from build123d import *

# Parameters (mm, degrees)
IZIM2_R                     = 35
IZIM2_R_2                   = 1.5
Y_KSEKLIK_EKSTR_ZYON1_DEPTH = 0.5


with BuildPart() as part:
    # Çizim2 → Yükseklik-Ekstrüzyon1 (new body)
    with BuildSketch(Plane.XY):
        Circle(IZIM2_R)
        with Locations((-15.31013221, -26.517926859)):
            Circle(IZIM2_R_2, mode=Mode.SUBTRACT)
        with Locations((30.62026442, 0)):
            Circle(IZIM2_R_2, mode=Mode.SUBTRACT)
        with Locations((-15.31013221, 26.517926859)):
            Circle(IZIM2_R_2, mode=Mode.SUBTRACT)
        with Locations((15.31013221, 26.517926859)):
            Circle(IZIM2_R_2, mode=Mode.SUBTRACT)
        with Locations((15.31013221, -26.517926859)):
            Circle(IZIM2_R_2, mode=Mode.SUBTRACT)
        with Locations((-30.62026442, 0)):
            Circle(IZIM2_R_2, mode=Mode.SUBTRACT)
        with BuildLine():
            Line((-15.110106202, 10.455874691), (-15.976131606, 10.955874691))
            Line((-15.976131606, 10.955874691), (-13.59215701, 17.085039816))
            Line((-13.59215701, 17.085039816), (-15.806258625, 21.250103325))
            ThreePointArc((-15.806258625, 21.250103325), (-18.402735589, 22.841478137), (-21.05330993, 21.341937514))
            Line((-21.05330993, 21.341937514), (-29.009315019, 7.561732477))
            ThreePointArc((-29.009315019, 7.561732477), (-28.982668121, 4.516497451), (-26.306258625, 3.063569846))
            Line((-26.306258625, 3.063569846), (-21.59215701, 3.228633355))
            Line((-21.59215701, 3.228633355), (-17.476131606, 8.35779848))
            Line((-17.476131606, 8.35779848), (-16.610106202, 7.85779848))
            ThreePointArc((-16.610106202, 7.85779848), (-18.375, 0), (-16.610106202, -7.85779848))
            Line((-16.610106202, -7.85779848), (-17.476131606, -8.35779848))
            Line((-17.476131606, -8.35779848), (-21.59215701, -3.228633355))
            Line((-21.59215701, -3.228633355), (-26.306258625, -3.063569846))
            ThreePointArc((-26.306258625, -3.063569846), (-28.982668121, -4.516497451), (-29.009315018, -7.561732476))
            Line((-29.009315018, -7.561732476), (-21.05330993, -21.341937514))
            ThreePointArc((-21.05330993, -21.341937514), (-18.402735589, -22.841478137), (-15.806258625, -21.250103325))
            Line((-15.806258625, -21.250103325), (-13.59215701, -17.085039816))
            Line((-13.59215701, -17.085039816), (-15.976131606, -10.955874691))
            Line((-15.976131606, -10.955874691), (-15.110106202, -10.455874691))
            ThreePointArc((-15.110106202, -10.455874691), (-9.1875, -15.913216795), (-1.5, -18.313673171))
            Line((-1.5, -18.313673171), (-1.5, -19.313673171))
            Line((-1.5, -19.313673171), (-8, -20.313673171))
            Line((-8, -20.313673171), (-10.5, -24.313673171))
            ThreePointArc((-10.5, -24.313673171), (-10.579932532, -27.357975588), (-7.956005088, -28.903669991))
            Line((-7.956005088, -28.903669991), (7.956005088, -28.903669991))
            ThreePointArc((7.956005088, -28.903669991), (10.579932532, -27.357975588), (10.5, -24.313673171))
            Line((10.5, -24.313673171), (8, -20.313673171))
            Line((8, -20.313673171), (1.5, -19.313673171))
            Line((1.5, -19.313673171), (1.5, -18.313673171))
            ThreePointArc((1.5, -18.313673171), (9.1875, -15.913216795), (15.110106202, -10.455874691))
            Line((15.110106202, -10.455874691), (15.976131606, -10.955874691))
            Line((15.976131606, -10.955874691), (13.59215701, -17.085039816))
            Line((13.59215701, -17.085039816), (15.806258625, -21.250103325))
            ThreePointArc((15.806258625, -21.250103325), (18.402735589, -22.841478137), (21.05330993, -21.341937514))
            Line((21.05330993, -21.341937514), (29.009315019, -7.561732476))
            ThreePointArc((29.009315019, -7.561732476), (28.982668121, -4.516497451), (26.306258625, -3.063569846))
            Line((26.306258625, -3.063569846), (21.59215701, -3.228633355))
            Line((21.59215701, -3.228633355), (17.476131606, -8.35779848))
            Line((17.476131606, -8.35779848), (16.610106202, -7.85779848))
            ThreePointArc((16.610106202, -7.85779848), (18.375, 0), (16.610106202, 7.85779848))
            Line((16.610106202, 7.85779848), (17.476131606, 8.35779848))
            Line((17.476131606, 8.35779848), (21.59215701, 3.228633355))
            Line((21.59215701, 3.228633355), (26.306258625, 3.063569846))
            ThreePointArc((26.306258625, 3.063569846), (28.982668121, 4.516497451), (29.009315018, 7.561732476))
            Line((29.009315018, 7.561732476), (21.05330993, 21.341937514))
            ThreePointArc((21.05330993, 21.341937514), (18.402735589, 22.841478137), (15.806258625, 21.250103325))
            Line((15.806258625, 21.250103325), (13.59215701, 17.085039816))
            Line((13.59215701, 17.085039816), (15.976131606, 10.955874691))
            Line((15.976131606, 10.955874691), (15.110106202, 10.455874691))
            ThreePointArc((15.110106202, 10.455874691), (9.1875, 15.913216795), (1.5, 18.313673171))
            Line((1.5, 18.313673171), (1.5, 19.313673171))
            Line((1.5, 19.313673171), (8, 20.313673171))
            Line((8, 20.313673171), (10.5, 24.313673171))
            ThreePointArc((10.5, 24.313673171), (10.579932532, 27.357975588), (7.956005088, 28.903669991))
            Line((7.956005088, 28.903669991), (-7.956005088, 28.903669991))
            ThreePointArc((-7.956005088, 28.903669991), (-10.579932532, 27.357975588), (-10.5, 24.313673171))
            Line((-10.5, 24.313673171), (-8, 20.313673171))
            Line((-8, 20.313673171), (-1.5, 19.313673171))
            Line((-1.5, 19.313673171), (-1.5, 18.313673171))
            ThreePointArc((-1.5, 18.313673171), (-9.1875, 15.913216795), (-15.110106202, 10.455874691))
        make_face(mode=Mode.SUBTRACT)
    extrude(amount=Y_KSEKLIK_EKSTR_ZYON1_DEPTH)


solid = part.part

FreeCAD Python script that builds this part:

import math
import FreeCAD as App
import Part
import Sketcher
Q = App.Units.Quantity

doc = App.newDocument("Part")
params = doc.addObject("Spreadsheet::Sheet", "Params")
for row, (alias, value) in enumerate([
    ("sketch1_diameter", "70 mm"),
    ("sketch1_diameter2", "3 mm"),
    ("sketch1_radius", "3 mm"),
    ("sketch1_height", "1 mm"),
    ("sketch1_length", "1 mm"),
    ("pad1_length", "0.5 mm"),
], start=1):
    params.set(f"A{row}", alias)
    params.set(f"B{row}", "=" + value)
    params.setAlias(f"B{row}", alias)

body = doc.addObject("PartDesign::Body", "Body")

# Sketch on XY plane
sketch1 = body.newObject("Sketcher::SketchObject", "Sketch")
sketch1.AttachmentSupport = (doc.getObject("XY_Plane"), [""])
sketch1.MapMode = "FlatFace"
sketch1.addGeometry([
    Part.Circle(App.Vector(0, 0, 0), App.Vector(0, 0, 1), 35),  # 0
    Part.Circle(App.Vector(-15.310132, -26.517927, 0), App.Vector(0, 0, 1), 1.5),  # 1
    Part.Circle(App.Vector(15.310132, -26.517927, 0), App.Vector(0, 0, 1), 1.5),  # 2
    Part.Circle(App.Vector(-30.620264, 0, 0), App.Vector(0, 0, 1), 1.5),  # 3
    Part.LineSegment(App.Vector(-15.976132, 10.955875, 0), App.Vector(-15.110106, 10.455875, 0)),  # 4
    Part.ArcOfCircle(Part.Circle(App.Vector(0, 0, 0), App.Vector(0, 0, 1), 18.375), math.radians(94.682417), math.radians(145.317583)),  # 5
    Part.LineSegment(App.Vector(-1.5, 18.313673, 0), App.Vector(-1.5, 19.313673, 0)),  # 6
    Part.LineSegment(App.Vector(-1.5, 19.313673, 0), App.Vector(-8, 20.313673, 0)),  # 7
    Part.LineSegment(App.Vector(-8, 20.313673, 0), App.Vector(-10.5, 24.313673, 0)),  # 8
    Part.ArcOfCircle(Part.Circle(App.Vector(-7.956005, 25.90367, 0), App.Vector(0, 0, 1), 3), math.radians(90), math.radians(212.005383)),  # 9
    Part.LineSegment(App.Vector(-7.956005, 28.90367, 0), App.Vector(7.956005, 28.90367, 0)),  # 10
    Part.ArcOfCircle(Part.Circle(App.Vector(7.956005, 25.90367, 0), App.Vector(0, 0, 1), 3), math.radians(-32.005383), math.radians(90)),  # 11
    Part.LineSegment(App.Vector(10.5, 24.313673, 0), App.Vector(8, 20.313673, 0)),  # 12
    Part.LineSegment(App.Vector(8, 20.313673, 0), App.Vector(1.5, 19.313673, 0)),  # 13
    Part.LineSegment(App.Vector(1.5, 19.313673, 0), App.Vector(1.5, 18.313673, 0)),  # 14
    Part.ArcOfCircle(Part.Circle(App.Vector(0, 0, 0), App.Vector(0, 0, 1), 18.375), math.radians(34.682417), math.radians(85.317583)),  # 15
    Part.LineSegment(App.Vector(15.110106, 10.455875, 0), App.Vector(15.976132, 10.955875, 0)),  # 16
    Part.LineSegment(App.Vector(15.976132, 10.955875, 0), App.Vector(13.592157, 17.08504, 0)),  # 17
    Part.LineSegment(App.Vector(13.592157, 17.08504, 0), App.Vector(15.806259, 21.250103, 0)),  # 18
    Part.ArcOfCircle(Part.Circle(App.Vector(18.455234, 19.841938, 0), App.Vector(0, 0, 1), 3), math.radians(30), math.radians(152.005383)),  # 19
    Part.LineSegment(App.Vector(21.05331, 21.341938, 0), App.Vector(29.009315, 7.561732, 0)),  # 20
    Part.ArcOfCircle(Part.Circle(App.Vector(26.411239, 6.061732, 0), App.Vector(0, 0, 1), 3), math.radians(-92.005383), math.radians(30)),  # 21
    Part.LineSegment(App.Vector(26.306259, 3.06357, 0), App.Vector(21.592157, 3.228633, 0)),  # 22
    Part.LineSegment(App.Vector(21.592157, 3.228633, 0), App.Vector(17.476132, 8.357798, 0)),  # 23
    Part.LineSegment(App.Vector(17.476132, 8.357798, 0), App.Vector(16.610106, 7.857798, 0)),  # 24
    Part.ArcOfCircle(Part.Circle(App.Vector(0, 0, 0), App.Vector(0, 0, 1), 18.375), math.radians(-25.317583), math.radians(25.317583)),  # 25
    Part.LineSegment(App.Vector(16.610106, -7.857798, 0), App.Vector(17.476132, -8.357798, 0)),  # 26
    Part.LineSegment(App.Vector(17.476132, -8.357798, 0), App.Vector(21.592157, -3.228633, 0)),  # 27
    Part.LineSegment(App.Vector(21.592157, -3.228633, 0), App.Vector(26.306259, -3.06357, 0)),  # 28
    Part.ArcOfCircle(Part.Circle(App.Vector(26.411239, -6.061732, 0), App.Vector(0, 0, 1), 3), math.radians(-30), math.radians(92.005383)),  # 29
    Part.LineSegment(App.Vector(29.009315, -7.561732, 0), App.Vector(21.05331, -21.341938, 0)),  # 30
    Part.ArcOfCircle(Part.Circle(App.Vector(18.455234, -19.841938, 0), App.Vector(0, 0, 1), 3), math.radians(-152.005383), math.radians(-30)),  # 31
    Part.LineSegment(App.Vector(15.806259, -21.250103, 0), App.Vector(13.592157, -17.08504, 0)),  # 32
    Part.LineSegment(App.Vector(13.592157, -17.08504, 0), App.Vector(15.976132, -10.955875, 0)),  # 33
    Part.LineSegment(App.Vector(15.976132, -10.955875, 0), App.Vector(15.110106, -10.455875, 0)),  # 34
    Part.ArcOfCircle(Part.Circle(App.Vector(0, 0, 0), App.Vector(0, 0, 1), 18.375), math.radians(-85.317583), math.radians(-34.682417)),  # 35
    Part.LineSegment(App.Vector(1.5, -18.313673, 0), App.Vector(1.5, -19.313673, 0)),  # 36
    Part.LineSegment(App.Vector(1.5, -19.313673, 0), App.Vector(8, -20.313673, 0)),  # 37
    Part.LineSegment(App.Vector(8, -20.313673, 0), App.Vector(10.5, -24.313673, 0)),  # 38
    Part.ArcOfCircle(Part.Circle(App.Vector(7.956005, -25.90367, 0), App.Vector(0, 0, 1), 3), math.radians(-90), math.radians(32.005383)),  # 39
    Part.LineSegment(App.Vector(7.956005, -28.90367, 0), App.Vector(-7.956005, -28.90367, 0)),  # 40
    Part.ArcOfCircle(Part.Circle(App.Vector(-7.956005, -25.90367, 0), App.Vector(0, 0, 1), 3), math.radians(147.994617), math.radians(270)),  # 41
    Part.LineSegment(App.Vector(-10.5, -24.313673, 0), App.Vector(-8, -20.313673, 0)),  # 42
    Part.LineSegment(App.Vector(-8, -20.313673, 0), App.Vector(-1.5, -19.313673, 0)),  # 43
    Part.LineSegment(App.Vector(-1.5, -19.313673, 0), App.Vector(-1.5, -18.313673, 0)),  # 44
    Part.ArcOfCircle(Part.Circle(App.Vector(0, 0, 0), App.Vector(0, 0, 1), 18.375), math.radians(-145.317583), math.radians(-94.682417)),  # 45
    Part.LineSegment(App.Vector(-15.110106, -10.455875, 0), App.Vector(-15.976132, -10.955875, 0)),  # 46
    Part.LineSegment(App.Vector(-15.976132, -10.955875, 0), App.Vector(-13.592157, -17.08504, 0)),  # 47
    Part.LineSegment(App.Vector(-13.592157, -17.08504, 0), App.Vector(-15.806259, -21.250103, 0)),  # 48
    Part.ArcOfCircle(Part.Circle(App.Vector(-18.455234, -19.841938, 0), App.Vector(0, 0, 1), 3), math.radians(-150), math.radians(-27.994617)),  # 49
    Part.LineSegment(App.Vector(-21.05331, -21.341938, 0), App.Vector(-29.009315, -7.561732, 0)),  # 50
    Part.ArcOfCircle(Part.Circle(App.Vector(-26.411239, -6.061732, 0), App.Vector(0, 0, 1), 3), math.radians(87.994617), math.radians(210)),  # 51
    Part.LineSegment(App.Vector(-26.306259, -3.06357, 0), App.Vector(-21.592157, -3.228633, 0)),  # 52
    Part.LineSegment(App.Vector(-21.592157, -3.228633, 0), App.Vector(-17.476132, -8.357798, 0)),  # 53
    Part.LineSegment(App.Vector(-17.476132, -8.357798, 0), App.Vector(-16.610106, -7.857798, 0)),  # 54
    Part.ArcOfCircle(Part.Circle(App.Vector(0, 0, 0), App.Vector(0, 0, 1), 18.375), math.radians(154.682417), math.radians(205.317583)),  # 55
    Part.LineSegment(App.Vector(-16.610106, 7.857798, 0), App.Vector(-17.476132, 8.357798, 0)),  # 56
    Part.LineSegment(App.Vector(-17.476132, 8.357798, 0), App.Vector(-21.592157, 3.228633, 0)),  # 57
    Part.LineSegment(App.Vector(-21.592157, 3.228633, 0), App.Vector(-26.306259, 3.06357, 0)),  # 58
    Part.ArcOfCircle(Part.Circle(App.Vector(-26.411239, 6.061732, 0), App.Vector(0, 0, 1), 3), math.radians(150), math.radians(272.005383)),  # 59
    Part.LineSegment(App.Vector(-29.009315, 7.561732, 0), App.Vector(-21.05331, 21.341938, 0)),  # 60
    Part.ArcOfCircle(Part.Circle(App.Vector(-18.455234, 19.841938, 0), App.Vector(0, 0, 1), 3), math.radians(27.994617), math.radians(150)),  # 61
    Part.LineSegment(App.Vector(-15.806259, 21.250103, 0), App.Vector(-13.592157, 17.08504, 0)),  # 62
    Part.LineSegment(App.Vector(-13.592157, 17.08504, 0), App.Vector(-15.976132, 10.955875, 0)),  # 63
    Part.Circle(App.Vector(-15.310132, 26.517927, 0), App.Vector(0, 0, 1), 1.5),  # 64
    Part.Circle(App.Vector(30.620264, 0, 0), App.Vector(0, 0, 1), 1.5),  # 65
    Part.Circle(App.Vector(15.310132, 26.517927, 0), App.Vector(0, 0, 1), 1.5),  # 66
], False)
sketch1.addConstraint([
    Sketcher.Constraint("Coincident", 4, 2, 5, 2),
    Sketcher.Constraint("Coincident", 5, 1, 6, 1),
    Sketcher.Constraint("Coincident", 6, 2, 7, 1),
    Sketcher.Constraint("Coincident", 7, 2, 8, 1),
    Sketcher.Constraint("Tangent", 8, 2, 9, 2),
    Sketcher.Constraint("Tangent", 9, 1, 10, 1),
    Sketcher.Constraint("Tangent", 10, 2, 11, 2),
    Sketcher.Constraint("Tangent", 11, 1, 12, 1),
    Sketcher.Constraint("Coincident", 12, 2, 13, 1),
    Sketcher.Constraint("Coincident", 13, 2, 14, 1),
    Sketcher.Constraint("Coincident", 14, 2, 15, 2),
    Sketcher.Constraint("Coincident", 15, 1, 16, 1),
    Sketcher.Constraint("Coincident", 16, 2, 17, 1),
    Sketcher.Constraint("Coincident", 17, 2, 18, 1),
    Sketcher.Constraint("Tangent", 18, 2, 19, 2),
    Sketcher.Constraint("Tangent", 19, 1, 20, 1),
    Sketcher.Constraint("Tangent", 20, 2, 21, 2),
    Sketcher.Constraint("Tangent", 21, 1, 22, 1),
    Sketcher.Constraint("Coincident", 22, 2, 23, 1),
    Sketcher.Constraint("Coincident", 23, 2, 24, 1),
    Sketcher.Constraint("Coincident", 24, 2, 25, 2),
    Sketcher.Constraint("Coincident", 25, 1, 26, 1),
    Sketcher.Constraint("Coincident", 26, 2, 27, 1),
    Sketcher.Constraint("Coincident", 27, 2, 28, 1),
    Sketcher.Constraint("Tangent", 28, 2, 29, 2),
    Sketcher.Constraint("Tangent", 29, 1, 30, 1),
    Sketcher.Constraint("Tangent", 30, 2, 31, 2),
    Sketcher.Constraint("Tangent", 31, 1, 32, 1),
    Sketcher.Constraint("Coincident", 32, 2, 33, 1),
    Sketcher.Constraint("Coincident", 33, 2, 34, 1),
    Sketcher.Constraint("Coincident", 34, 2, 35, 2),
    Sketcher.Constraint("Coincident", 35, 1, 36, 1),
    Sketcher.Constraint("Coincident", 36, 2, 37, 1),
    Sketcher.Constraint("Coincident", 37, 2, 38, 1),
    Sketcher.Constraint("Tangent", 38, 2, 39, 2),
    Sketcher.Constraint("Tangent", 39, 1, 40, 1),
    Sketcher.Constraint("Tangent", 40, 2, 41, 2),
    Sketcher.Constraint("Tangent", 41, 1, 42, 1),
    Sketcher.Constraint("Coincident", 42, 2, 43, 1),
    Sketcher.Constraint("Coincident", 43, 2, 44, 1),
    Sketcher.Constraint("Coincident", 44, 2, 45, 2),
    Sketcher.Constraint("Coincident", 45, 1, 46, 1),
    Sketcher.Constraint("Coincident", 46, 2, 47, 1),
    Sketcher.Constraint("Coincident", 47, 2, 48, 1),
    Sketcher.Constraint("Tangent", 48, 2, 49, 2),
    Sketcher.Constraint("Tangent", 49, 1, 50, 1),
    Sketcher.Constraint("Tangent", 50, 2, 51, 2),
    Sketcher.Constraint("Tangent", 51, 1, 52, 1),
    Sketcher.Constraint("Coincident", 52, 2, 53, 1),
    Sketcher.Constraint("Coincident", 53, 2, 54, 1),
    Sketcher.Constraint("Coincident", 54, 2, 55, 2),
    Sketcher.Constraint("Coincident", 55, 1, 56, 1),
    Sketcher.Constraint("Coincident", 56, 2, 57, 1),
    Sketcher.Constraint("Coincident", 57, 2, 58, 1),
    Sketcher.Constraint("Tangent", 58, 2, 59, 2),
    Sketcher.Constraint("Tangent", 59, 1, 60, 1),
    Sketcher.Constraint("Tangent", 60, 2, 61, 2),
    Sketcher.Constraint("Tangent", 61, 1, 62, 1),
    Sketcher.Constraint("Coincident", 62, 2, 63, 1),
    Sketcher.Constraint("Coincident", 63, 2, 4, 1),
    Sketcher.Constraint("Vertical", 6),
    Sketcher.Constraint("Horizontal", 10),
    Sketcher.Constraint("Vertical", 14),
    Sketcher.Constraint("Vertical", 36),
    Sketcher.Constraint("Horizontal", 40),
    Sketcher.Constraint("Vertical", 44),
    Sketcher.Constraint("Coincident", 0, 3, -1, 1),
    Sketcher.Constraint("Coincident", 5, 3, -1, 1),
    Sketcher.Constraint("Coincident", 15, 3, -1, 1),
    Sketcher.Constraint("Coincident", 25, 3, -1, 1),
    Sketcher.Constraint("Coincident", 35, 3, -1, 1),
    Sketcher.Constraint("Coincident", 45, 3, -1, 1),
    Sketcher.Constraint("Coincident", 55, 3, -1, 1),
    Sketcher.Constraint("Equal", 1, 2),
    Sketcher.Constraint("Equal", 2, 3),
    Sketcher.Constraint("Equal", 9, 11),
    Sketcher.Constraint("Equal", 5, 15),
    Sketcher.Constraint("Equal", 11, 19),
    Sketcher.Constraint("Equal", 19, 21),
    Sketcher.Constraint("Equal", 15, 25),
    Sketcher.Constraint("Equal", 21, 29),
    Sketcher.Constraint("Equal", 29, 31),
    Sketcher.Constraint("Equal", 25, 35),
    Sketcher.Constraint("Equal", 31, 39),
    Sketcher.Constraint("Equal", 39, 41),
    Sketcher.Constraint("Equal", 35, 45),
    Sketcher.Constraint("Equal", 41, 49),
    Sketcher.Constraint("Equal", 49, 51),
    Sketcher.Constraint("Equal", 45, 55),
    Sketcher.Constraint("Equal", 51, 59),
    Sketcher.Constraint("Equal", 59, 61),
    Sketcher.Constraint("Equal", 3, 64),
    Sketcher.Constraint("Equal", 64, 65),
    Sketcher.Constraint("Equal", 65, 66),
    Sketcher.Constraint("Symmetric", 9, 3, 39, 3, -1, 1),
    Sketcher.Constraint("Symmetric", 19, 3, 49, 3, -1, 1),
    Sketcher.Constraint("Symmetric", 21, 3, 51, 3, -1, 1),
    Sketcher.Constraint("Symmetric", 29, 3, 59, 3, -1, 1),
    Sketcher.Constraint("Symmetric", 31, 3, 61, 3, -1, 1),
    Sketcher.Constraint("Symmetric", 2, 3, 64, 3, -1, 1),
    Sketcher.Constraint("Symmetric", 3, 3, 65, 3, -1, 1),
    Sketcher.Constraint("Symmetric", 1, 3, 66, 3, -1, 1),
    Sketcher.Constraint("Symmetric", 6, 2, 36, 2, -1, 1),
    Sketcher.Constraint("Symmetric", 7, 2, 37, 2, -1, 1),
    Sketcher.Constraint("Symmetric", 11, 1, 41, 1, -1, 1),
    Sketcher.Constraint("Symmetric", 13, 2, 43, 2, -1, 1),
    Sketcher.Constraint("Symmetric", 16, 2, 46, 2, -1, 1),
    Sketcher.Constraint("Symmetric", 17, 2, 47, 2, -1, 1),
    Sketcher.Constraint("Symmetric", 22, 2, 52, 2, -1, 1),
    Sketcher.Constraint("Symmetric", 23, 2, 53, 2, -1, 1),
    Sketcher.Constraint("Symmetric", 26, 2, 56, 2, -1, 1),
    Sketcher.Constraint("Symmetric", 27, 2, 57, 2, -1, 1),
    Sketcher.Constraint("Symmetric", 32, 2, 62, 2, -1, 1),
    Sketcher.Constraint("Symmetric", 33, 2, 63, 2, -1, 1),
    Sketcher.Constraint("Symmetric", 1, 3, 2, 3, -2),
    Sketcher.Constraint("Symmetric", 31, 3, 49, 3, -2),
    Sketcher.Constraint("Symmetric", 29, 3, 51, 3, -2),
    Sketcher.Constraint("Symmetric", 8, 2, 11, 1, -2),
    Sketcher.Constraint("Symmetric", 6, 2, 13, 2, -2),
    Sketcher.Constraint("Symmetric", 33, 2, 46, 2, -2),
    Sketcher.Constraint("Symmetric", 32, 2, 47, 2, -2),
    Sketcher.Constraint("Symmetric", 27, 2, 52, 2, -2),
    Sketcher.Constraint("Symmetric", 26, 2, 53, 2, -2),
    Sketcher.Constraint("PointOnObject", 3, 3, -1),
    Sketcher.Constraint("Perpendicular", 16, 20),
    Sketcher.Constraint("Perpendicular", 20, 24),
    Sketcher.Constraint("Parallel", 4, 26),
    Sketcher.Constraint("Perpendicular", 26, 30),
    Sketcher.Constraint("Perpendicular", 30, 34),
    Sketcher.Constraint("Parallel", 13, 43),
    Sketcher.Constraint("Parallel", 24, 46),
    Sketcher.Constraint("Perpendicular", 50, 54),
    Sketcher.Constraint("Parallel", 34, 56),
    Sketcher.Constraint("Horizontal", 7, 2, 12, 2),
    Sketcher.Constraint("Equal", 13, 17),
    Sketcher.Constraint("Equal", 12, 18),
    Sketcher.Constraint("Equal", 18, 22),
    Sketcher.Constraint("Equal", 17, 23),
    Sketcher.Constraint("Equal", 16, 24),
    Sketcher.Constraint("Diameter", 0, Q("70 mm")),
    Sketcher.Constraint("Diameter", 1, Q("3 mm")),
    Sketcher.Constraint("Radius", 9, Q("3 mm")),
    Sketcher.Constraint("DistanceY", 6, 1, 6, 2, Q("1 mm")),
    Sketcher.Constraint("Angle", 4, Q("-30 deg")),
    Sketcher.Constraint("Distance", 4, Q("1 mm")),
    Sketcher.Constraint("DistanceX", 7, 2, -1, 1, Q("8 mm")),
    Sketcher.Constraint("Radius", 5, Q("18.375 mm")),
    Sketcher.Constraint("DistanceX", 5, 1, -1, 1, Q("1.5 mm")),
    Sketcher.Constraint("DistanceX", 8, 2, -1, 1, Q("10.5 mm")),
    Sketcher.Constraint("DistanceX", 10, 1, 10, 2, Q("15.91201 mm")),
    Sketcher.Constraint("DistanceY", -1, 1, 23, 2, Q("8.357798 mm")),
    Sketcher.Constraint("Distance", 20, Q("15.91201 mm")),
    Sketcher.Constraint("DistanceY", -1, 1, 9, 3, Q("25.90367 mm")),
    Sketcher.Constraint("DistanceX", -1, 1, 21, 3, Q("26.411239 mm")),
    Sketcher.Constraint("DistanceX", -1, 1, 16, 2, Q("15.976132 mm")),
    Sketcher.Constraint("DistanceY", -1, 1, 17, 2, Q("17.08504 mm")),
    Sketcher.Constraint("DistanceX", 1, 3, -1, 1, Q("15.310132 mm")),
    Sketcher.Constraint("DistanceY", 1, 3, -1, 1, Q("26.517927 mm")),
    Sketcher.Constraint("DistanceX", 3, 3, -1, 1, Q("30.620264 mm")),
])
sketch1.setExpression("Constraints[139]", "Params.sketch1_diameter")
sketch1.setExpression("Constraints[140]", "Params.sketch1_diameter2")
sketch1.setExpression("Constraints[141]", "Params.sketch1_radius")
sketch1.setExpression("Constraints[142]", "Params.sketch1_height")
sketch1.setExpression("Constraints[144]", "Params.sketch1_length")
pad1 = body.newObject("PartDesign::Pad", "Pad")
pad1.Profile = sketch1
pad1.setExpression("Length", "Params.pad1_length")

doc.recompute()
